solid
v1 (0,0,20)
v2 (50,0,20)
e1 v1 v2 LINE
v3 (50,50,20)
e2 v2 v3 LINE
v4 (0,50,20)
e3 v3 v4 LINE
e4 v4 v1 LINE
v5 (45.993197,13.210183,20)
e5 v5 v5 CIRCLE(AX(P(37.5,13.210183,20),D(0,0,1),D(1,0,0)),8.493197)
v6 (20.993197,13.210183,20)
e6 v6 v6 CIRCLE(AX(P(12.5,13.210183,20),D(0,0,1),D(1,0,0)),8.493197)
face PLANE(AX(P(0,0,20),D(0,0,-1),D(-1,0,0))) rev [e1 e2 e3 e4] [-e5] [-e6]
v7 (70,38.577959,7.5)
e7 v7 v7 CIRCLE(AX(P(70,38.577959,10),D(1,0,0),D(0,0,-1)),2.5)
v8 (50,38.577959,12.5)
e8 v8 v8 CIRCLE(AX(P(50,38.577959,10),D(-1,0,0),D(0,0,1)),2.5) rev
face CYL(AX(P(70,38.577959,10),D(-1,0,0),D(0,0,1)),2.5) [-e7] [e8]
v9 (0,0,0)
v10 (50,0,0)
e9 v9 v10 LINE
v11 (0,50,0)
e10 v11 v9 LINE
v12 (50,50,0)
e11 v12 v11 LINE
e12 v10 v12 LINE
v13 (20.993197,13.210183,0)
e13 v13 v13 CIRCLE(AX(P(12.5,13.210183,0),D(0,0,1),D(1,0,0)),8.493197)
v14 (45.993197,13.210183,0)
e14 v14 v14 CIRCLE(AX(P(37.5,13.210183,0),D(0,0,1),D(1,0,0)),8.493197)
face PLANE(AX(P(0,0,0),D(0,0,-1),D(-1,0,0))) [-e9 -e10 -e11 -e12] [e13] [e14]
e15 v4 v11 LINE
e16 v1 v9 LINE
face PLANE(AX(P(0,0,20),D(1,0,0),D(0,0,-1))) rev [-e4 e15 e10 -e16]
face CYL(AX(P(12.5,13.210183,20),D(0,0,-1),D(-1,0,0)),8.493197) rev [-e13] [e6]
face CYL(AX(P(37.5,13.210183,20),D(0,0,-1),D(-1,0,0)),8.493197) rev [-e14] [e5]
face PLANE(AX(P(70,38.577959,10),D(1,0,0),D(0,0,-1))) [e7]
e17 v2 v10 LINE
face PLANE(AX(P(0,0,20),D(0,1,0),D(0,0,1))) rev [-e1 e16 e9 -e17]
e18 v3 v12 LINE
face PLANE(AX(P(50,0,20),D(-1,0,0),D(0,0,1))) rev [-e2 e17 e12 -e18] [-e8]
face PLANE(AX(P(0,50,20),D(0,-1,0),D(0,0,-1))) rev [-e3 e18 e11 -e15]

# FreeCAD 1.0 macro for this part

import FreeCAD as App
import Part
import Sketcher
Q = App.Units.Quantity


def add_polygon(sketch, points):
    """Adds a closed chain of lines whose ends are joined by coincident constraints."""
    first, n = sketch.GeometryCount, len(points)
    for a, b in zip(points, points[1:] + points[:1]):
        sketch.addGeometry(Part.LineSegment(App.Vector(*a, 0), App.Vector(*b, 0)), False)
    for i in range(n):
        sketch.addConstraint(Sketcher.Constraint("Coincident", first + i, 2, first + (i + 1) % n, 1))

doc = App.newDocument("Part")
body = doc.addObject("PartDesign::Body", "Body")

sketch1 = body.newObject("Sketcher::SketchObject", "Sketch")
sketch1.AttachmentSupport = (doc.getObject("XY_Plane"), [""])
sketch1.MapMode = "FlatFace"
add_polygon(sketch1, [(0, 50), (0, 0), (50, 0), (50, 50)])
sketch1.addGeometry(Part.Circle(App.Vector(12, 13, 0), App.Vector(0, 0, 1), 8), False)
sketch1.addGeometry(Part.Circle(App.Vector(38, 13, 0), App.Vector(0, 0, 1), 8), False)
sketch1.addConstraint(Sketcher.Constraint("Vertical", 0))
sketch1.addConstraint(Sketcher.Constraint("Horizontal", 1))
sketch1.addConstraint(Sketcher.Constraint("Vertical", 2))
sketch1.addConstraint(Sketcher.Constraint("Horizontal", 3))
sketch1.addConstraint(Sketcher.Constraint("Coincident", 0, 2, -1, 1))
sketch1.addConstraint(Sketcher.Constraint("Equal", 4, 5))
sketch1.addConstraint(Sketcher.Constraint("Horizontal", 4, 3, 5, 3))
sketch1.addConstraint(Sketcher.Constraint("Equal", 3, 0))
sketch1.addConstraint(Sketcher.Constraint("DistanceX", 1, 1, 1, 2, Q("50 mm")))
sketch1.addConstraint(Sketcher.Constraint("DistanceX", 4, 3, 5, 3, Q("25 mm")))
sketch1.addConstraint(Sketcher.Constraint("DistanceX", -1, 1, 4, 3, Q("12.5 mm")))
sketch1.addConstraint(Sketcher.Constraint("Diameter", 4, Q("16.986395 mm")))
sketch1.addConstraint(Sketcher.Constraint("DistanceY", -1, 1, 4, 3, Q("13.210183 mm")))
pad1 = body.newObject("PartDesign::Pad", "Pad")
pad1.Profile = sketch1
pad1.Length = 20

sketch2 = body.newObject("Sketcher::SketchObject", "Sketch001")
sketch2.AttachmentSupport = (doc.getObject("YZ_Plane"), [""])
sketch2.MapMode = "FlatFace"
sketch2.AttachmentOffset = App.Placement(App.Vector(0, 0, 50), App.Rotation())
sketch2.addGeometry(Part.Circle(App.Vector(38.6, 10, 0), App.Vector(0, 0, 1), 2.5), False)
sketch2.addConstraint(Sketcher.Constraint("Diameter", 0, Q("5 mm")))
sketch2.addConstraint(Sketcher.Constraint("DistanceY", -1, 1, 0, 3, Q("10 mm")))
sketch2.addConstraint(Sketcher.Constraint("DistanceX", -1, 1, 0, 3, Q("38.577959 mm")))
pad2 = body.newObject("PartDesign::Pad", "Pad001")
pad2.Profile = sketch2
pad2.Length = 20

doc.recompute()
